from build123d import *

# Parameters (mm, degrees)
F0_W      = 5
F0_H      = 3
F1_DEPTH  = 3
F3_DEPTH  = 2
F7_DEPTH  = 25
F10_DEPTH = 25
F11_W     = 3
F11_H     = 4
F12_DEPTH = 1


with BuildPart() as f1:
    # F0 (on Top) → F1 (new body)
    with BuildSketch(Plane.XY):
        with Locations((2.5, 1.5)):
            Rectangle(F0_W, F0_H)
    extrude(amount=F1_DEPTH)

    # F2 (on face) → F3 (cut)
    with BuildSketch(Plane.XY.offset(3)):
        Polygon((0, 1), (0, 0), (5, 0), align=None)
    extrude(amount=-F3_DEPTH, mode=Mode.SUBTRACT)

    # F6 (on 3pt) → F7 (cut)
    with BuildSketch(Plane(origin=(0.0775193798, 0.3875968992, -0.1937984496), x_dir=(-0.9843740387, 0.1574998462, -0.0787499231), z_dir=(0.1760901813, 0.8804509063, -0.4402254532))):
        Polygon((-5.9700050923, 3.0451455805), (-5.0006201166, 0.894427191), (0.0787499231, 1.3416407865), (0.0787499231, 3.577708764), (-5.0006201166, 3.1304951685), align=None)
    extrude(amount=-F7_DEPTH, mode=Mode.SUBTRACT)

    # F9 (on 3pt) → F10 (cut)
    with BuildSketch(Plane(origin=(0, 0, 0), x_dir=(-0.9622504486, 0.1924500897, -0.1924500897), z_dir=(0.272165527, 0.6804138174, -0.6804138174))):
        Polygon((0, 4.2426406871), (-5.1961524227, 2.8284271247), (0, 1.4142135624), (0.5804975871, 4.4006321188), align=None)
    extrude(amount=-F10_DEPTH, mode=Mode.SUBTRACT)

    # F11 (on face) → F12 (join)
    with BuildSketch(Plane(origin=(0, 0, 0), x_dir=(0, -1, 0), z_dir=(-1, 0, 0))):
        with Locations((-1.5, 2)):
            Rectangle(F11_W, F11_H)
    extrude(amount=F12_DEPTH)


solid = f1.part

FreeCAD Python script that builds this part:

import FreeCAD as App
import Part
import Sketcher

V = App.Vector

doc = App.newDocument("Part")
params = doc.addObject("Spreadsheet::Sheet", "Params")
for row, (alias, value) in enumerate([
    ("sketch1_width", "5 mm"),
    ("sketch1_height", "3 mm"),
    ("pad1_length", "3 mm"),
    ("sketch2_width", "5 mm"),
    ("sketch2_height", "1 mm"),
    ("pocket1_length", "2 mm"),
    ("pocket2_length", "25 mm"),
    ("pocket3_length", "25 mm"),
    ("sketch5_width", "3 mm"),
    ("sketch5_height", "4 mm"),
    ("pad2_length", "1 mm"),
], start=1):
    params.set(f"A{row}", alias)
    params.set(f"B{row}", "=" + value)
    params.setAlias(f"B{row}", alias)

body = doc.addObject("PartDesign::Body", "Body")

# Sketch on XY plane
sketch1 = doc.addObject("Sketcher::SketchObject", "Sketch")
body.addObject(sketch1)
sketch1.AttachmentSupport = (doc.XY_Plane, [""])
sketch1.MapMode = "FlatFace"
sketch1.addGeometry(Part.LineSegment(V(0, 3, 0), V(0, 0, 0)), False)
sketch1.addGeometry(Part.LineSegment(V(0, 0, 0), V(5, 0, 0)), False)
sketch1.addGeometry(Part.LineSegment(V(5, 0, 0), V(5, 3, 0)), False)
sketch1.addGeometry(Part.LineSegment(V(5, 3, 0), V(0, 3, 0)), False)
sketch1.addConstraint(Sketcher.Constraint("Coincident", 0, 2, 1, 1))
sketch1.addConstraint(Sketcher.Constraint("Coincident", 1, 2, 2, 1))
sketch1.addConstraint(Sketcher.Constraint("Coincident", 2, 2, 3, 1))
sketch1.addConstraint(Sketcher.Constraint("Coincident", 3, 2, 0, 1))
sketch1.addConstraint(Sketcher.Constraint("Vertical", 0))
sketch1.addConstraint(Sketcher.Constraint("Horizontal", 1))
sketch1.addConstraint(Sketcher.Constraint("Vertical", 2))
sketch1.addConstraint(Sketcher.Constraint("Horizontal", 3))
sketch1.addConstraint(Sketcher.Constraint("Coincident", 0, 2, -1, 1))
sketch1.addConstraint(Sketcher.Constraint("DistanceX", 1, 1, 1, 2, 5.0))
sketch1.addConstraint(Sketcher.Constraint("DistanceY", 0, 2, 0, 1, 3.0))
sketch1.setExpression("Constraints[9]", "Params.sketch1_width")
sketch1.setExpression("Constraints[10]", "Params.sketch1_height")
pad1 = doc.addObject("PartDesign::Pad", "Pad")
body.addObject(pad1)
pad1.Profile = sketch1
pad1.setExpression("Length", "Params.pad1_length")

# Sketch on XY plane
sketch2 = doc.addObject("Sketcher::SketchObject", "Sketch001")
body.addObject(sketch2)
sketch2.AttachmentSupport = (doc.XY_Plane, [""])
sketch2.MapMode = "FlatFace"
sketch2.AttachmentOffset = App.Placement(V(0, 0, 3), App.Rotation())
sketch2.addGeometry(Part.LineSegment(V(0, 1, 0), V(0, 0, 0)), False)
sketch2.addGeometry(Part.LineSegment(V(0, 0, 0), V(5, 0, 0)), False)
sketch2.addGeometry(Part.LineSegment(V(5, 0, 0), V(0, 1, 0)), False)
sketch2.addConstraint(Sketcher.Constraint("Coincident", 0, 2, 1, 1))
sketch2.addConstraint(Sketcher.Constraint("Coincident", 1, 2, 2, 1))
sketch2.addConstraint(Sketcher.Constraint("Coincident", 2, 2, 0, 1))
sketch2.addConstraint(Sketcher.Constraint("Vertical", 0))
sketch2.addConstraint(Sketcher.Constraint("Horizontal", 1))
sketch2.addConstraint(Sketcher.Constraint("Coincident", 0, 2, -1, 1))
sketch2.addConstraint(Sketcher.Constraint("DistanceX", 1, 1, 1, 2, 5.0))
sketch2.addConstraint(Sketcher.Constraint("DistanceY", 0, 2, 0, 1, 1.0))
sketch2.setExpression("Constraints[6]", "Params.sketch2_width")
sketch2.setExpression("Constraints[7]", "Params.sketch2_height")
pocket1 = doc.addObject("PartDesign::Pocket", "Pocket")
body.addObject(pocket1)
pocket1.Profile = sketch2
pocket1.setExpression("Length", "Params.pocket1_length")

# Sketch on an angled plane
sketch3 = doc.addObject("Sketcher::SketchObject", "Sketch002")
body.addObject(sketch3)
sketch3.Placement = App.Placement(V(0.077519, 0.387597, -0.193798), App.Rotation(V(-0.984374039, 0.157499846, -0.078749923), V(0, 0.447213595, 0.894427191), V(0.176090181, 0.880450906, -0.440225453), "ZXY"))
sketch3.addGeometry(Part.LineSegment(V(-5.970005, 3.045146, 0), V(-5.00062, 0.894427, 0)), False)
sketch3.addGeometry(Part.LineSegment(V(-5.00062, 0.894427, 0), V(0.07875, 1.341641, 0)), False)
sketch3.addGeometry(Part.LineSegment(V(0.07875, 1.341641, 0), V(0.07875, 3.577709, 0)), False)
sketch3.addGeometry(Part.LineSegment(V(0.07875, 3.577709, 0), V(-5.00062, 3.130495, 0)), False)
sketch3.addGeometry(Part.LineSegment(V(-5.00062, 3.130495, 0), V(-5.970005, 3.045146, 0)), False)
sketch3.addConstraint(Sketcher.Constraint("Coincident", 0, 2, 1, 1))
sketch3.addConstraint(Sketcher.Constraint("Coincident", 1, 2, 2, 1))
sketch3.addConstraint(Sketcher.Constraint("Coincident", 2, 2, 3, 1))
sketch3.addConstraint(Sketcher.Constraint("Coincident", 3, 2, 4, 1))
sketch3.addConstraint(Sketcher.Constraint("Coincident", 4, 2, 0, 1))
sketch3.addConstraint(Sketcher.Constraint("Vertical", 2))
sketch3.addConstraint(Sketcher.Constraint("Parallel", 1, 3))
sketch3.addConstraint(Sketcher.Constraint("Parallel", 3, 4))
sketch3.addConstraint(Sketcher.Constraint("Vertical", 0, 2, 3, 2))
sketch3.addConstraint(Sketcher.Constraint("Distance", 0, 2.359088))
sketch3.addConstraint(Sketcher.Constraint("Distance", 1, 5.09902))
sketch3.addConstraint(Sketcher.Constraint("DistanceY", 2, 1, 2, 2, 2.236068))
sketch3.addConstraint(Sketcher.Constraint("DistanceX", 0, 2, -1, 1, 5.00062))
sketch3.addConstraint(Sketcher.Constraint("DistanceX", -1, 1, 1, 2, 0.07875))
sketch3.addConstraint(Sketcher.Constraint("DistanceY", -1, 1, 1, 2, 1.341641))
pocket2 = doc.addObject("PartDesign::Pocket", "Pocket001")
body.addObject(pocket2)
pocket2.Profile = sketch3
pocket2.setExpression("Length", "Params.pocket2_length")

# Sketch on an angled plane
sketch4 = doc.addObject("Sketcher::SketchObject", "Sketch003")
body.addObject(sketch4)
sketch4.Placement = App.Placement(V(0, 0, 0), App.Rotation(V(-0.962250449, 0.19245009, -0.19245009), V(0, 0.707106781, 0.707106781), V(0.272165527, 0.680413817, -0.680413817), "ZXY"))
sketch4.addGeometry(Part.LineSegment(V(0, 4.242641, 0), V(-5.196152, 2.828427, 0)), False)
sketch4.addGeometry(Part.LineSegment(V(-5.196152, 2.828427, 0), V(0, 1.414214, 0)), False)
sketch4.addGeometry(Part.LineSegment(V(0, 1.414214, 0), V(0.580498, 4.400632, 0)), False)
sketch4.addGeometry(Part.LineSegment(V(0.580498, 4.400632, 0), V(0, 4.242641, 0)), False)
sketch4.addConstraint(Sketcher.Constraint("Coincident", 0, 2, 1, 1))
sketch4.addConstraint(Sketcher.Constraint("Coincident", 1, 2, 2, 1))
sketch4.addConstraint(Sketcher.Constraint("Coincident", 2, 2, 3, 1))
sketch4.addConstraint(Sketcher.Constraint("Coincident", 3, 2, 0, 1))
sketch4.addConstraint(Sketcher.Constraint("PointOnObject", 1, 2, -2))
sketch4.addConstraint(Sketcher.Constraint("PointOnObject", 3, 2, -2))
sketch4.addConstraint(Sketcher.Constraint("Parallel", 0, 3))
sketch4.addConstraint(Sketcher.Constraint("Equal", 0, 1))
sketch4.addConstraint(Sketcher.Constraint("DistanceY", -1, 1, 3, 2, 4.242641))
sketch4.addConstraint(Sketcher.Constraint("DistanceY", 1, 2, 2, 2, 2.986419))
sketch4.addConstraint(Sketcher.Constraint("DistanceX", 0, 2, 2, 2, 5.77665))
sketch4.addConstraint(Sketcher.Constraint("DistanceY", 3, 2, 2, 2, 0.157991))
pocket3 = doc.addObject("PartDesign::Pocket", "Pocket002")
body.addObject(pocket3)
pocket3.Profile = sketch4
pocket3.setExpression("Length", "Params.pocket3_length")

# Sketch on YZ plane
sketch5 = doc.addObject("Sketcher::SketchObject", "Sketch004")
body.addObject(sketch5)
sketch5.AttachmentSupport = (doc.YZ_Plane, [""])
sketch5.MapMode = "FlatFace"
sketch5.addGeometry(Part.LineSegment(V(3, 4, 0), V(3, 0, 0)), False)
sketch5.addGeometry(Part.LineSegment(V(3, 0, 0), V(0, 0, 0)), False)
sketch5.addGeometry(Part.LineSegment(V(0, 0, 0), V(0, 4, 0)), False)
sketch5.addGeometry(Part.LineSegment(V(0, 4, 0), V(3, 4, 0)), False)
sketch5.addConstraint(Sketcher.Constraint("Coincident", 0, 2, 1, 1))
sketch5.addConstraint(Sketcher.Constraint("Coincident", 1, 2, 2, 1))
sketch5.addConstraint(Sketcher.Constraint("Coincident", 2, 2, 3, 1))
sketch5.addConstraint(Sketcher.Constraint("Coincident", 3, 2, 0, 1))
sketch5.addConstraint(Sketcher.Constraint("Vertical", 0))
sketch5.addConstraint(Sketcher.Constraint("Horizontal", 1))
sketch5.addConstraint(Sketcher.Constraint("Vertical", 2))
sketch5.addConstraint(Sketcher.Constraint("Horizontal", 3))
sketch5.addConstraint(Sketcher.Constraint("Coincident", 1, 2, -1, 1))
sketch5.addConstraint(Sketcher.Constraint("DistanceX", 1, 2, 1, 1, 3.0))
sketch5.addConstraint(Sketcher.Constraint("DistanceY", 0, 2, 0, 1, 4.0))
sketch5.setExpression("Constraints[9]", "Params.sketch5_width")
sketch5.setExpression("Constraints[10]", "Params.sketch5_height")
pad2 = doc.addObject("PartDesign::Pad", "Pad001")
body.addObject(pad2)
pad2.Profile = sketch5
pad2.setExpression("Length", "Params.pad2_length")
pad2.Reversed = True

doc.recompute()
